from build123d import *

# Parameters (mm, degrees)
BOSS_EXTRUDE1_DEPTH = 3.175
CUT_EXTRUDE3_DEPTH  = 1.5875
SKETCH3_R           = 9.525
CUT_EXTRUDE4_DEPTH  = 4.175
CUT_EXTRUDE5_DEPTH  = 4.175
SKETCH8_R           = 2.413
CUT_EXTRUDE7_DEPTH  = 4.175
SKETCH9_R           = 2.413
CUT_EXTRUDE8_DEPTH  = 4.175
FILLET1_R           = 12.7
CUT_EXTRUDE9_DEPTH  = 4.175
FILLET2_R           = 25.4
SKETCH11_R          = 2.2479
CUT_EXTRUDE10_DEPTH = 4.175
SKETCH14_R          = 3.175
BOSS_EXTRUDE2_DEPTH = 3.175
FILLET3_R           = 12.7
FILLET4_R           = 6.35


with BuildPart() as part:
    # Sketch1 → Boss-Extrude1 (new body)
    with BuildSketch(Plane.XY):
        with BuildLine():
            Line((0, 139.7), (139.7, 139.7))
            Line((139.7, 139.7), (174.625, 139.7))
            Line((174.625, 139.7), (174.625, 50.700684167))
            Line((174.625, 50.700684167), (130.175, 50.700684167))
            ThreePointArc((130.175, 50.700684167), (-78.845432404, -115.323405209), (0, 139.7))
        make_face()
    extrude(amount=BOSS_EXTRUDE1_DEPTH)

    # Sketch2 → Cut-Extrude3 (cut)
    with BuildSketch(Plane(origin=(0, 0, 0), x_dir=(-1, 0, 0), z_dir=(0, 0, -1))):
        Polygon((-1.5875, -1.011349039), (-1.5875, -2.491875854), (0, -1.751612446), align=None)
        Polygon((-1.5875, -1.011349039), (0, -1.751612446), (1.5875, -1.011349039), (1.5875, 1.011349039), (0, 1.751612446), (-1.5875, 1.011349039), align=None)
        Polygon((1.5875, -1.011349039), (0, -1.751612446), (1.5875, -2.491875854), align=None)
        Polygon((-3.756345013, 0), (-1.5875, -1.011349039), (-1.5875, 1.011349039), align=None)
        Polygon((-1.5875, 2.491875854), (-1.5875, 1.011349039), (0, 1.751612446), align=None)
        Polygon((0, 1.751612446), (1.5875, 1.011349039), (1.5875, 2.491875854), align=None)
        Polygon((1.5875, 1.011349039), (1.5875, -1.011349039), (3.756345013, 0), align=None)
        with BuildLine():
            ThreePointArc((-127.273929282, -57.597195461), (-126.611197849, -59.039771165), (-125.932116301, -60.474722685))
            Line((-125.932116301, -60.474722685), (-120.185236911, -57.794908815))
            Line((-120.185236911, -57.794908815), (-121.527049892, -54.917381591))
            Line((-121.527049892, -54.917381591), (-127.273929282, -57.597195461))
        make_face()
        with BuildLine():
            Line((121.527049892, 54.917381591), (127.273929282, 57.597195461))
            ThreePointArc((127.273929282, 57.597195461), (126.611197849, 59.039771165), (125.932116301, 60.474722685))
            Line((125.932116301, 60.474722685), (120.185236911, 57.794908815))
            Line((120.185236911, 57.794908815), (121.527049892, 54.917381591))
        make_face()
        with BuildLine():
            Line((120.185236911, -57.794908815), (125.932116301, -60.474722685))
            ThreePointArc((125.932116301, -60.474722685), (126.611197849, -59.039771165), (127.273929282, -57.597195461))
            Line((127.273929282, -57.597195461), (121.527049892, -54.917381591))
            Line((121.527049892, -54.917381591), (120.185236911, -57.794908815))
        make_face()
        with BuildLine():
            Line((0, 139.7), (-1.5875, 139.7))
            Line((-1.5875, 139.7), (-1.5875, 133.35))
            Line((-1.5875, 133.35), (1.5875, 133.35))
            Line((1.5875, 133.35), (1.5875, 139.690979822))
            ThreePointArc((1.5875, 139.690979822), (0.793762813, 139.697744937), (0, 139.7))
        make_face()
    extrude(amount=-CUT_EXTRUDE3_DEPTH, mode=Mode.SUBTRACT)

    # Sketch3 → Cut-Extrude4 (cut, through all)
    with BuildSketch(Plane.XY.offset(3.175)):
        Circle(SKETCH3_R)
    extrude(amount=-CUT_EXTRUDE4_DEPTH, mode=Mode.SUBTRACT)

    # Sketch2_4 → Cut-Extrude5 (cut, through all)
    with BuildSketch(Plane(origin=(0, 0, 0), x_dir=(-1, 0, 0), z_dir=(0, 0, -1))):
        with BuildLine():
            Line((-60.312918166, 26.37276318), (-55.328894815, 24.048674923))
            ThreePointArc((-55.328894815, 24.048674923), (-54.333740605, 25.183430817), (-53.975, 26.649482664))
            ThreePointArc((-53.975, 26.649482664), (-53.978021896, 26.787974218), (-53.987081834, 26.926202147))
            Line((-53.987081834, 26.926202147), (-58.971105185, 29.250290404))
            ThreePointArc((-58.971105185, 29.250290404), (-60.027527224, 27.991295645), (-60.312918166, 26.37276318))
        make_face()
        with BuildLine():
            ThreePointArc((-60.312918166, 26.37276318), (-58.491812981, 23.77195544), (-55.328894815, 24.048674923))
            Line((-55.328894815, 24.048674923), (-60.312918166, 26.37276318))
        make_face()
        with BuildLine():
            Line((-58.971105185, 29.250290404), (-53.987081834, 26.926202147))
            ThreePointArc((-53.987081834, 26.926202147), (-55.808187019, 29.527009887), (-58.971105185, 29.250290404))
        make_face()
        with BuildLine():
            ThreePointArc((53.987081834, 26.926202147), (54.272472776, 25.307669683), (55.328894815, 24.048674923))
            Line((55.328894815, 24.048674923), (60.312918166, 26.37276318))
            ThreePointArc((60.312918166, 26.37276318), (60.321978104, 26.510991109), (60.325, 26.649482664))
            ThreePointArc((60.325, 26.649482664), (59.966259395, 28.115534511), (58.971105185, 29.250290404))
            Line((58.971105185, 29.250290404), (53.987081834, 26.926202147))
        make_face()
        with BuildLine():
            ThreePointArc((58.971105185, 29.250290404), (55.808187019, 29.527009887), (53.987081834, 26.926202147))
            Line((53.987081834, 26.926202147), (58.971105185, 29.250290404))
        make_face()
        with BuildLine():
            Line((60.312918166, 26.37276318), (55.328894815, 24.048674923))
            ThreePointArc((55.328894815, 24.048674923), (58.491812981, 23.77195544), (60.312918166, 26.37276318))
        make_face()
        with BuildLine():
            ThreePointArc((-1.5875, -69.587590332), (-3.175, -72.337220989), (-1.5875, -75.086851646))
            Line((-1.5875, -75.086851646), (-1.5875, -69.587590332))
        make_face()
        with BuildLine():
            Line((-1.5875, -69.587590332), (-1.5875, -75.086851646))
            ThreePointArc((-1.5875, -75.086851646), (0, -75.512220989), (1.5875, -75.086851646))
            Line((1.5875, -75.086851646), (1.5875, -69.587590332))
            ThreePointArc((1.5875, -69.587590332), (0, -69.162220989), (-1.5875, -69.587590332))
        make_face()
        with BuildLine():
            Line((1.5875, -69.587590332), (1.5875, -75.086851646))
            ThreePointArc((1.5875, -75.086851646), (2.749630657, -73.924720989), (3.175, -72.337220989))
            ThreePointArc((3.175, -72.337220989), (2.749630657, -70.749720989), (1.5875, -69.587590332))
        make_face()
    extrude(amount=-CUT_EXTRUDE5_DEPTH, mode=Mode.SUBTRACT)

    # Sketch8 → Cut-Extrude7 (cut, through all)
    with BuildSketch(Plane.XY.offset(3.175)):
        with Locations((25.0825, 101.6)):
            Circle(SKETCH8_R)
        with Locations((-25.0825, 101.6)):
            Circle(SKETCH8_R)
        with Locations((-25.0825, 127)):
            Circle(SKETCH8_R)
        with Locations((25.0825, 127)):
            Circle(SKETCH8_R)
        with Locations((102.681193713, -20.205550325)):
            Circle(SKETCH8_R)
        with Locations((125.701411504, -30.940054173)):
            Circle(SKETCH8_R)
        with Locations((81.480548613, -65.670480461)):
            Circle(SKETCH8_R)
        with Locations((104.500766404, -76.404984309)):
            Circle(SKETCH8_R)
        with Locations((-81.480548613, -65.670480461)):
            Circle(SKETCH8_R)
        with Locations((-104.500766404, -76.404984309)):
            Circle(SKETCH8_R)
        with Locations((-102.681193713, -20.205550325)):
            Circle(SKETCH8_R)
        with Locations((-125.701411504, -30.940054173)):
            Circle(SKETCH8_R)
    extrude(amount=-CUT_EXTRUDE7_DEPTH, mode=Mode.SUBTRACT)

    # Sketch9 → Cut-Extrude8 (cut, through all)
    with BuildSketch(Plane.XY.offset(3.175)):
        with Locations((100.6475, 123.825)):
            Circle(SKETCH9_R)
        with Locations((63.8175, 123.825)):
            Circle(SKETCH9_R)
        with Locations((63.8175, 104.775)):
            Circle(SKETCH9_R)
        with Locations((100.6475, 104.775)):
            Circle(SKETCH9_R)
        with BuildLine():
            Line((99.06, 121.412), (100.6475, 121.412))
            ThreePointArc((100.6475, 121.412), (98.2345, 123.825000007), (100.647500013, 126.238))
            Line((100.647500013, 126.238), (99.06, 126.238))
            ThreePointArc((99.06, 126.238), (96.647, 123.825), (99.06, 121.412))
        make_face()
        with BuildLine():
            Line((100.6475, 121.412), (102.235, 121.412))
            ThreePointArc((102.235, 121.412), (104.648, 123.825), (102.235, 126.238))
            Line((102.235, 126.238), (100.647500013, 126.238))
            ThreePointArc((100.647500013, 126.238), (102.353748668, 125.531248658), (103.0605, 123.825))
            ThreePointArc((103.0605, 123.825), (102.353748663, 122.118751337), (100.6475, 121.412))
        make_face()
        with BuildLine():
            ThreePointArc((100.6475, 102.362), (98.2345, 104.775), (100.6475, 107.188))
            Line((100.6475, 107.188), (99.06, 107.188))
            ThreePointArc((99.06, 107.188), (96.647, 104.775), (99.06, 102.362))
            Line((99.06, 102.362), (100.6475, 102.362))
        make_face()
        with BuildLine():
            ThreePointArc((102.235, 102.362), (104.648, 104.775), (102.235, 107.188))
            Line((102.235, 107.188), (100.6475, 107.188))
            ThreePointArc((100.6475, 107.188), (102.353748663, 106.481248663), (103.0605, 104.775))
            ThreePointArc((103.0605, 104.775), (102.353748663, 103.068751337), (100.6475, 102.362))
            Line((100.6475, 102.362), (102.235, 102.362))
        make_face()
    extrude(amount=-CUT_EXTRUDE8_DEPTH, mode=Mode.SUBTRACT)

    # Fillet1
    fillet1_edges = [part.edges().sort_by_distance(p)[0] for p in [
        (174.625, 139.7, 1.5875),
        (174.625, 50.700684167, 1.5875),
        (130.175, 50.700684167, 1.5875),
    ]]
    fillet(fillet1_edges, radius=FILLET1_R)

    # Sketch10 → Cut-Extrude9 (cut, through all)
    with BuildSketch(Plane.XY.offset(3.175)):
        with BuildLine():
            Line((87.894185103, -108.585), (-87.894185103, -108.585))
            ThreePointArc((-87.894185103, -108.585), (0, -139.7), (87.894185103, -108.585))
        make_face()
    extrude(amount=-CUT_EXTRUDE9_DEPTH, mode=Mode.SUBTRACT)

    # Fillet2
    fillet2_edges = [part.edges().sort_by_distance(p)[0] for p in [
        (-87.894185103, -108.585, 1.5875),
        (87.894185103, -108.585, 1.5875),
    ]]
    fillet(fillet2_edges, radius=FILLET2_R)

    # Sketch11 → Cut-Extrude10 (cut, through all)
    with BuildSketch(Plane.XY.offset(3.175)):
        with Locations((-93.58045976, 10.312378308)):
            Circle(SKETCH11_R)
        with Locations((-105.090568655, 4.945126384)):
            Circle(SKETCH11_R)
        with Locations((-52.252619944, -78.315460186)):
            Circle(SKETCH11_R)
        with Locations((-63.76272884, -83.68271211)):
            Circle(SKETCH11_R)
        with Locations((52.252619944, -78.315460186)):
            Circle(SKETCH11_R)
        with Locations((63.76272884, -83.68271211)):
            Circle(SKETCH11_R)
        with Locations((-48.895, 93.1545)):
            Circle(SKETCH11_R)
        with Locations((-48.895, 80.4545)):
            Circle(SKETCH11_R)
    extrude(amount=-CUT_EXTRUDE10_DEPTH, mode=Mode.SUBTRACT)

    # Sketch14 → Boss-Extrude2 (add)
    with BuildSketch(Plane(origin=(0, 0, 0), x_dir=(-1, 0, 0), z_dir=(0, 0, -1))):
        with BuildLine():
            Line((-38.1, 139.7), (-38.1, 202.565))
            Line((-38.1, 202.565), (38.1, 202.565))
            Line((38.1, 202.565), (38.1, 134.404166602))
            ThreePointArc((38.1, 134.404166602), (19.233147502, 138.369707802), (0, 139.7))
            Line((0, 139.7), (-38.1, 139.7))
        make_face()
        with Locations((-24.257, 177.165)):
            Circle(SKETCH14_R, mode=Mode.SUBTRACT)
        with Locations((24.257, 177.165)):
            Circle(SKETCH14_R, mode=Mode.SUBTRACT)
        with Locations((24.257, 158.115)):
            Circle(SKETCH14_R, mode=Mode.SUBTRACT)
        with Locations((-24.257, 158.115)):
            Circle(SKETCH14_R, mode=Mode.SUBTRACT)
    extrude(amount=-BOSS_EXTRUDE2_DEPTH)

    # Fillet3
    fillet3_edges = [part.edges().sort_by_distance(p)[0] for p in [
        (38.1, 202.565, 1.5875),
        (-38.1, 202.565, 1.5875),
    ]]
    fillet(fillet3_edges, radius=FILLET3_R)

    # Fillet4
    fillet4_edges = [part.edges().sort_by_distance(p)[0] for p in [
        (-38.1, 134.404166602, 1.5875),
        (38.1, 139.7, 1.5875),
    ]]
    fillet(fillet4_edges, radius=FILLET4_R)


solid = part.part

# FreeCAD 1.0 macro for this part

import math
import FreeCAD as App
import Part
import Sketcher

V = App.Vector
Q = App.Units.Quantity


def edges_at(feature, points):
    """Names of the edges that pass closest to the given points."""
    edges = feature.Shape.Edges
    near = lambda p: min(range(len(edges)), key=lambda i: edges[i].distToShape(Part.Vertex(*p))[0])
    return sorted({f"Edge{near(p) + 1}" for p in points})


def add_polygon(sketch, points):
    """Adds a closed chain of lines whose ends are joined by coincident constraints."""
    first, n = sketch.GeometryCount, len(points)
    for a, b in zip(points, points[1:] + points[:1]):
        sketch.addGeometry(Part.LineSegment(App.Vector(*a, 0), App.Vector(*b, 0)), False)
    for i in range(n):
        sketch.addConstraint(Sketcher.Constraint("Coincident", first + i, 2, first + (i + 1) % n, 1))

doc = App.newDocument("Part")
body = doc.addObject("PartDesign::Body", "Body")

# Sketch on XY plane
sketch1 = body.newObject("Sketcher::SketchObject", "Sketch")
sketch1.AttachmentSupport = (doc.getObject("XY_Plane"), [""])
sketch1.MapMode = "FlatFace"
sketch1.addGeometry([
    Part.LineSegment(V(175, 140, 0), V(0, 140, 0)),
    Part.ArcOfCircle(Part.Circle(V(0, 0, 0), V(0, 0, 1), 140), math.radians(90), math.radians(381)),
    Part.LineSegment(V(130, 51, 0), V(175, 51, 0)),
    Part.LineSegment(V(175, 51, 0), V(175, 140, 0)),
], False)
sketch1.addConstraint([
    Sketcher.Constraint("Tangent", 0, 2, 1, 1),
    Sketcher.Constraint("Coincident", 1, 2, 2, 1),
    Sketcher.Constraint("Coincident", 2, 2, 3, 1),
    Sketcher.Constraint("Coincident", 3, 2, 0, 1),
    Sketcher.Constraint("Horizontal", 0),
    Sketcher.Constraint("Horizontal", 2),
    Sketcher.Constraint("Vertical", 3),
    Sketcher.Constraint("Coincident", 1, 3, -1, 1),
    Sketcher.Constraint("Radius", 1, Q("5.5 in")),
    Sketcher.Constraint("DistanceX", 2, 1, 2, 2, Q("1.75 in")),
    Sketcher.Constraint("DistanceX", 0, 2, 0, 1, Q("6.875 in")),
])
pad1 = body.newObject("PartDesign::Pad", "Pad")
pad1.Profile = sketch1
pad1.Length = Q("0.125 in")

# Sketch on XY plane
sketch2 = body.newObject("Sketcher::SketchObject", "Sketch001")
sketch2.AttachmentSupport = (doc.getObject("XY_Plane"), [""])
sketch2.MapMode = "FlatFace"
add_polygon(sketch2, [(1.6, -2.5), (0, -1.8), (-1.6, -2.5), (-1.6, -1), (-3.8, 0), (-1.6, 1), (-1.6, 2.5), (0, 1.8), (1.6, 2.5), (1.6, 1), (3.8, 0), (1.6, -1)])  # lines 0-11
sketch2.addGeometry(Part.ArcOfCircle(Part.Circle(V(0, 0, 0), V(0, 0, 1), 139.7), math.radians(-25.65), math.radians(-24.35)), False)  # 12
sketch2.addGeometry(Part.LineSegment(V(125.9, -60.5, 0), V(120.2, -57.8, 0)), False)  # 13
sketch2.addGeometry(Part.LineSegment(V(120.2, -57.8, 0), V(121.5, -54.9, 0)), False)  # 14
sketch2.addGeometry(Part.LineSegment(V(121.5, -54.9, 0), V(127.3, -57.6, 0)), False)  # 15
sketch2.addGeometry(Part.LineSegment(V(-121.5, 54.9, 0), V(-127.3, 57.6, 0)), False)  # 16
sketch2.addGeometry(Part.ArcOfCircle(Part.Circle(V(0, 0, 0), V(0, 0, 1), 139.7), math.radians(154.35), math.radians(155.65)), False)  # 17
sketch2.addGeometry(Part.LineSegment(V(-125.9, 60.5, 0), V(-120.2, 57.8, 0)), False)  # 18
sketch2.addGeometry(Part.LineSegment(V(-120.2, 57.8, 0), V(-121.5, 54.9, 0)), False)  # 19
sketch2.addGeometry(Part.LineSegment(V(-120.2, -57.8, 0), V(-125.9, -60.5, 0)), False)  # 20
sketch2.addGeometry(Part.ArcOfCircle(Part.Circle(V(0, 0, 0), V(0, 0, 1), 139.7), math.radians(-155.65), math.radians(-154.35)), False)  # 21
sketch2.addGeometry(Part.LineSegment(V(-127.3, -57.6, 0), V(-121.5, -54.9, 0)), False)  # 22
sketch2.addGeometry(Part.LineSegment(V(-121.5, -54.9, 0), V(-120.2, -57.8, 0)), False)  # 23
sketch2.addGeometry(Part.LineSegment(V(0, 139.7, 0), V(1.6, 139.7, 0)), False)  # 24
sketch2.addGeometry(Part.LineSegment(V(1.6, 139.7, 0), V(1.6, 133.3, 0)), False)  # 25
sketch2.addGeometry(Part.LineSegment(V(1.6, 133.3, 0), V(-1.6, 133.3, 0)), False)  # 26
sketch2.addGeometry(Part.LineSegment(V(-1.6, 133.3, 0), V(-1.6, 139.7, 0)), False)  # 27
sketch2.addGeometry(Part.ArcOfCircle(Part.Circle(V(0, 0, 0), V(0, 0, 1), 139.7), math.radians(90), math.radians(90.65)), False)  # 28
sketch2.addConstraint([
    Sketcher.Constraint("Coincident", 12, 1, 13, 1),
    Sketcher.Constraint("Coincident", 13, 2, 14, 1),
    Sketcher.Constraint("Coincident", 14, 2, 15, 1),
    Sketcher.Constraint("Coincident", 15, 2, 12, 2),
    Sketcher.Constraint("Coincident", 16, 2, 17, 2),
    Sketcher.Constraint("Coincident", 17, 1, 18, 1),
    Sketcher.Constraint("Coincident", 18, 2, 19, 1),
    Sketcher.Constraint("Coincident", 19, 2, 16, 1),
    Sketcher.Constraint("Coincident", 20, 2, 21, 2),
    Sketcher.Constraint("Coincident", 21, 1, 22, 1),
    Sketcher.Constraint("Coincident", 22, 2, 23, 1),
    Sketcher.Constraint("Coincident", 23, 2, 20, 1),
    Sketcher.Constraint("Coincident", 24, 2, 25, 1),
    Sketcher.Constraint("Coincident", 25, 2, 26, 1),
    Sketcher.Constraint("Coincident", 26, 2, 27, 1),
    Sketcher.Constraint("Coincident", 27, 2, 28, 2),
    Sketcher.Constraint("Tangent", 28, 1, 24, 1),
    Sketcher.Constraint("Vertical", 2),
    Sketcher.Constraint("Vertical", 5),
    Sketcher.Constraint("Vertical", 8),
    Sketcher.Constraint("Vertical", 11),
    Sketcher.Constraint("Horizontal", 24),
    Sketcher.Constraint("Vertical", 25),
    Sketcher.Constraint("Horizontal", 26),
    Sketcher.Constraint("Vertical", 27),
    Sketcher.Constraint("Coincident", 12, 3, -1, 1),
    Sketcher.Constraint("Coincident", 17, 3, -1, 1),
    Sketcher.Constraint("Coincident", 21, 3, -1, 1),
    Sketcher.Constraint("Equal", 12, 17),
    Sketcher.Constraint("Equal", 17, 21),
    Sketcher.Constraint("Symmetric", 0, 2, 6, 2, -1, 1),
    Sketcher.Constraint("Symmetric", 1, 2, 7, 2, -1, 1),
    Sketcher.Constraint("Symmetric", 3, 2, 9, 2, -1, 1),
    Sketcher.Constraint("Symmetric", 4, 2, 10, 2, -1, 1),
    Sketcher.Constraint("Symmetric", 13, 2, 18, 2, -1, 1),
    Sketcher.Constraint("Symmetric", 14, 2, 19, 2, -1, 1),
    Sketcher.Constraint("Symmetric", 5, 2, 7, 2, -2),
    Sketcher.Constraint("Symmetric", 14, 2, 22, 2, -2),
    Sketcher.Constraint("Symmetric", 13, 2, 23, 2, -2),
    Sketcher.Constraint("PointOnObject", 28, 3, -2),
    Sketcher.Constraint("PointOnObject", 0, 2, -2),
    Sketcher.Constraint("PointOnObject", 3, 2, -1),
    Sketcher.Constraint("Parallel", 0, 3),
    Sketcher.Constraint("Parallel", 1, 4),
    Sketcher.Constraint("Parallel", 3, 6),
    Sketcher.Constraint("Parallel", 6, 9),
    Sketcher.Constraint("Parallel", 9, 13),
    Sketcher.Constraint("Perpendicular", 13, 14),
    Sketcher.Constraint("Perpendicular", 14, 15),
    Sketcher.Constraint("Parallel", 15, 16),
    Sketcher.Constraint("Parallel", 16, 18),
    Sketcher.Constraint("Parallel", 10, 20),
    Sketcher.Constraint("Parallel", 20, 22),
    Sketcher.Constraint("Vertical", 11, 2, 24, 2),
    Sketcher.Constraint("Vertical", 5, 2, 26, 2),
    Sketcher.Constraint("Equal", 13, 15),
    Sketcher.Constraint("Angle", 0, Q("155 deg")),
    Sketcher.Constraint("DistanceY", 25, 2, 25, 1, Q("0.25 in")),
    Sketcher.Constraint("DistanceY", -1, 1, 24, 2, Q("5.5 in")),
    Sketcher.Constraint("DistanceX", 24, 1, 24, 2, Q("0.0625 in")),
    Sketcher.Constraint("Distance", 14, Q("0.125 in")),
    Sketcher.Constraint("Radius", 28, 139.700012),
    Sketcher.Constraint("Radius", 12, 139.699994),
    Sketcher.Constraint("DistanceY", 0, 2, 28, 3, 1.751601),
    Sketcher.Constraint("DistanceY", 2, 2, 4, 2, 2.022698),
    Sketcher.Constraint("Distance", 13, 6.34098),
])
pocket1 = body.newObject("PartDesign::Pocket", "Pocket")
pocket1.Profile = sketch2
pocket1.Length = Q("0.0625 in")
pocket1.Reversed = True

# Sketch on XY plane
sketch3 = body.newObject("Sketcher::SketchObject", "Sketch002")
sketch3.AttachmentSupport = (doc.getObject("XY_Plane"), [""])
sketch3.MapMode = "FlatFace"
sketch3.AttachmentOffset = App.Placement(V(0, 0, 0.125 * 25.4), App.Rotation())
sketch3.addGeometry(Part.Circle(V(0, 0, 0), V(0, 0, 1), 10), False)
sketch3.addConstraint([
    Sketcher.Constraint("Coincident", 0, 3, -1, 1),
    Sketcher.Constraint("Diameter", 0, Q("0.75 in")),
])
pocket2 = body.newObject("PartDesign::Pocket", "Pocket001")
pocket2.Profile = sketch3
pocket2.Type = "ThroughAll"

# Sketch on XY plane
sketch4 = body.newObject("Sketcher::SketchObject", "Sketch003")
sketch4.AttachmentSupport = (doc.getObject("XY_Plane"), [""])
sketch4.MapMode = "FlatFace"
sketch4.addGeometry([
    Part.ArcOfCircle(Part.Circle(V(57.15, 26.65, 0), V(0, 0, 1), 3.18), math.radians(-180), math.radians(-125)),  # 0
    Part.ArcOfCircle(Part.Circle(V(57.15, 26.65, 0), V(0, 0, 1), 3.17), math.radians(175), math.radians(180)),  # 1
    Part.ArcOfCircle(Part.Circle(V(57.15, 26.65, 0), V(0, 0, 1), 3.17), math.radians(55), math.radians(175)),  # 2
    Part.ArcOfCircle(Part.Circle(V(57.15, 26.65, 0), V(0, 0, 1), 3.17), math.radians(-5), math.radians(55)),  # 3
    Part.ArcOfCircle(Part.Circle(V(57.15, 26.65, 0), V(0, 0, 1), 3.17), math.radians(-125), math.radians(-5)),  # 4
    Part.ArcOfCircle(Part.Circle(V(-57.15, 26.65, 0), V(0, 0, 1), 3.17), math.radians(-55), math.radians(5)),  # 5
    Part.ArcOfCircle(Part.Circle(V(-57.15, 26.65, 0), V(0, 0, 1), 3.17), math.radians(-175), math.radians(-55)),  # 6
    Part.ArcOfCircle(Part.Circle(V(-57.15, 26.65, 0), V(0, 0, 1), 3.17), math.radians(180), math.radians(185)),  # 7
    Part.ArcOfCircle(Part.Circle(V(-57.15, 26.65, 0), V(0, 0, 1), 3.17), math.radians(125), math.radians(180)),  # 8
    Part.ArcOfCircle(Part.Circle(V(-57.15, 26.65, 0), V(0, 0, 1), 3.17), math.radians(5), math.radians(125)),  # 9
    Part.ArcOfCircle(Part.Circle(V(0, -72.34, 0), V(0, 0, 1), 3.17), math.radians(-60), math.radians(60)),  # 10
    Part.ArcOfCircle(Part.Circle(V(0, -72.34, 0), V(0, 0, 1), 3.17), math.radians(-120), math.radians(-60)),  # 11
    Part.ArcOfCircle(Part.Circle(V(0, -72.34, 0), V(0, 0, 1), 3.17), math.radians(180), math.radians(240)),  # 12
    Part.ArcOfCircle(Part.Circle(V(0, -72.34, 0), V(0, 0, 1), 3.17), math.radians(120), math.radians(180)),  # 13
    Part.ArcOfCircle(Part.Circle(V(0, -72.34, 0), V(0, 0, 1), 3.17), math.radians(60), math.radians(120)),  # 14
], False)
sketch4.addConstraint([
    Sketcher.Constraint("Tangent", 0, 1, 1, 2),
    Sketcher.Constraint("Tangent", 1, 1, 2, 2),
    Sketcher.Constraint("Tangent", 2, 1, 3, 2),
    Sketcher.Constraint("Tangent", 3, 1, 4, 2),
    Sketcher.Constraint("Tangent", 4, 1, 0, 2),
    Sketcher.Constraint("Tangent", 5, 1, 6, 2),
    Sketcher.Constraint("Tangent", 6, 1, 7, 2),
    Sketcher.Constraint("Tangent", 7, 1, 8, 2),
    Sketcher.Constraint("Tangent", 8, 1, 9, 2),
    Sketcher.Constraint("Tangent", 9, 1, 5, 2),
    Sketcher.Constraint("Tangent", 10, 1, 11, 2),
    Sketcher.Constraint("Tangent", 11, 1, 12, 2),
    Sketcher.Constraint("Tangent", 12, 1, 13, 2),
    Sketcher.Constraint("Tangent", 13, 1, 14, 2),
    Sketcher.Constraint("Tangent", 14, 1, 10, 2),
    Sketcher.Constraint("Coincident", 2, 3, 0, 3),
    Sketcher.Constraint("Coincident", 7, 3, 5, 3),
    Sketcher.Constraint("Coincident", 12, 3, 10, 3),
    Sketcher.Constraint("Equal", 4, 5),
    Sketcher.Constraint("Equal", 9, 10),
    Sketcher.Constraint("Symmetric", 0, 3, 5, 3, -2),
    Sketcher.Constraint("Symmetric", 10, 1, 11, 1, -2),
    Sketcher.Constraint("Horizontal", 9, 3, 0, 1),
    Sketcher.Constraint("Horizontal", 4, 1, 5, 1),
    Sketcher.Constraint("Horizontal", 3, 1, 6, 1),
    Sketcher.Constraint("Horizontal", 0, 1, 7, 1),
    Sketcher.Constraint("Horizontal", 2, 1, 8, 1),
    Sketcher.Constraint("Horizontal", 1, 1, 9, 1),
    Sketcher.Constraint("Horizontal", 14, 3, 12, 1),
    Sketcher.Constraint("Horizontal", 13, 1, 14, 1),
    Sketcher.Constraint("Vertical", 11, 1, 13, 1),
    Sketcher.Constraint("Radius", 0, Q("0.125 in")),
    Sketcher.Constraint("DistanceX", 5, 3, 1, 3, Q("4.5 in")),
    Sketcher.Constraint("DistanceX", -1, 1, 10, 1, Q("0.0625 in")),
    Sketcher.Constraint("DistanceY", 10, 3, -1, 1, 72.337221),
    Sketcher.Constraint("DistanceX", -1, 1, 1, 1, 53.987082),
    Sketcher.Constraint("DistanceY", -1, 1, 2, 1, 29.25029),
    Sketcher.Constraint("DistanceX", -1, 1, 3, 1, 60.312918),
    Sketcher.Constraint("DistanceY", -1, 1, 0, 3, 26.649483),
    Sketcher.Constraint("DistanceX", -1, 1, 4, 1, 55.328895),
])
pocket3 = body.newObject("PartDesign::Pocket", "Pocket002")
pocket3.Profile = sketch4
pocket3.Type = "ThroughAll"
pocket3.Reversed = True

# Sketch on XY plane
sketch5 = body.newObject("Sketcher::SketchObject", "Sketch004")
sketch5.AttachmentSupport = (doc.getObject("XY_Plane"), [""])
sketch5.MapMode = "FlatFace"
sketch5.AttachmentOffset = App.Placement(V(0, 0, 0.125 * 25.4), App.Rotation())
sketch5.addGeometry([
    Part.Circle(V(25.1, 101.6, 0), V(0, 0, 1), 2.4),  # 0
    Part.Circle(V(-25.1, 101.6, 0), V(0, 0, 1), 2.4),  # 1
    Part.Circle(V(-25.1, 127, 0), V(0, 0, 1), 2.4),  # 2
    Part.Circle(V(25.1, 127, 0), V(0, 0, 1), 2.4),  # 3
    Part.Circle(V(102.7, -20.2, 0), V(0, 0, 1), 2.4),  # 4
    Part.Circle(V(125.7, -30.9, 0), V(0, 0, 1), 2.4),  # 5
    Part.Circle(V(81.5, -65.7, 0), V(0, 0, 1), 2.4),  # 6
    Part.Circle(V(104.5, -76.4, 0), V(0, 0, 1), 2.4),  # 7
    Part.Circle(V(-81.5, -65.7, 0), V(0, 0, 1), 2.4),  # 8
    Part.Circle(V(-104.5, -76.4, 0), V(0, 0, 1), 2.4),  # 9
    Part.Circle(V(-102.7, -20.2, 0), V(0, 0, 1), 2.4),  # 10
    Part.Circle(V(-125.7, -30.9, 0), V(0, 0, 1), 2.4),  # 11
], False)
sketch5.addConstraint([
    Sketcher.Constraint("Equal", 0, 1),
    Sketcher.Constraint("Equal", 1, 2),
    Sketcher.Constraint("Equal", 2, 3),
    Sketcher.Constraint("Equal", 3, 4),
    Sketcher.Constraint("Equal", 4, 5),
    Sketcher.Constraint("Equal", 5, 6),
    Sketcher.Constraint("Equal", 6, 7),
    Sketcher.Constraint("Equal", 7, 8),
    Sketcher.Constraint("Equal", 8, 9),
    Sketcher.Constraint("Equal", 9, 10),
    Sketcher.Constraint("Equal", 10, 11),
    Sketcher.Constraint("Symmetric", 0, 3, 1, 3, -2),
    Sketcher.Constraint("Symmetric", 2, 3, 3, 3, -2),
    Sketcher.Constraint("Symmetric", 6, 3, 8, 3, -2),
    Sketcher.Constraint("Symmetric", 7, 3, 9, 3, -2),
    Sketcher.Constraint("Symmetric", 4, 3, 10, 3, -2),
    Sketcher.Constraint("Symmetric", 5, 3, 11, 3, -2),
    Sketcher.Constraint("Vertical", 1, 3, 2, 3),
    Sketcher.Constraint("Diameter", 0, Q("0.19 in")),
    Sketcher.Constraint("DistanceY", -1, 1, 0, 3, Q("4 in")),
    Sketcher.Constraint("DistanceY", -1, 1, 2, 3, Q("5 in")),
    Sketcher.Constraint("DistanceX", 1, 3, 0, 3, Q("1.975 in")),
    Sketcher.Constraint("DistanceY", 4, 3, -1, 1, 20.20555),
    Sketcher.Constraint("DistanceX", -1, 1, 5, 3, 125.701412),
    Sketcher.Constraint("DistanceX", -1, 1, 6, 3, 81.480549),
    Sketcher.Constraint("DistanceY", 6, 3, -1, 1, 65.67048),
    Sketcher.Constraint("DistanceY", 7, 3, 5, 3, 45.46493),
    Sketcher.Constraint("DistanceX", 9, 3, 4, 3, 207.18196),
    Sketcher.Constraint("DistanceX", -1, 1, 4, 3, 102.681194),
    Sketcher.Constraint("DistanceY", 5, 3, -1, 1, 30.940054),
])
pocket4 = body.newObject("PartDesign::Pocket", "Pocket003")
pocket4.Profile = sketch5
pocket4.Type = "ThroughAll"

# Sketch on XY plane
sketch6 = body.newObject("Sketcher::SketchObject", "Sketch005")
sketch6.AttachmentSupport = (doc.getObject("XY_Plane"), [""])
sketch6.MapMode = "FlatFace"
sketch6.AttachmentOffset = App.Placement(V(0, 0, 0.125 * 25.4), App.Rotation())
sketch6.addGeometry([
    Part.ArcOfCircle(Part.Circle(V(99.1, 123.8, 0), V(0, 0, 1), 2.4), math.radians(90), math.radians(270)),  # 0
    Part.LineSegment(V(99.1, 121.4, 0), V(102.2, 121.4, 0)),  # 1
    Part.ArcOfCircle(Part.Circle(V(102.2, 123.8, 0), V(0, 0, 1), 2.4), math.radians(-90), math.radians(90)),  # 2
    Part.LineSegment(V(102.2, 126.2, 0), V(99.1, 126.2, 0)),  # 3
    Part.Circle(V(63.8, 123.8, 0), V(0, 0, 1), 2.4),  # 4
    Part.Circle(V(63.8, 104.8, 0), V(0, 0, 1), 2.4),  # 5
    Part.ArcOfCircle(Part.Circle(V(99.1, 104.8, 0), V(0, 0, 1), 2.4), math.radians(90), math.radians(270)),  # 6
    Part.LineSegment(V(99.1, 102.4, 0), V(102.2, 102.4, 0)),  # 7
    Part.ArcOfCircle(Part.Circle(V(102.2, 104.8, 0), V(0, 0, 1), 2.4), math.radians(-90), math.radians(90)),  # 8
    Part.LineSegment(V(102.2, 107.2, 0), V(99.1, 107.2, 0)),  # 9
], False)
sketch6.addConstraint([
    Sketcher.Constraint("Tangent", 0, 2, 1, 1),
    Sketcher.Constraint("Tangent", 1, 2, 2, 1),
    Sketcher.Constraint("Tangent", 2, 2, 3, 1),
    Sketcher.Constraint("Tangent", 3, 2, 0, 1),
    Sketcher.Constraint("Tangent", 6, 2, 7, 1),
    Sketcher.Constraint("Tangent", 7, 2, 8, 1),
    Sketcher.Constraint("Tangent", 8, 2, 9, 1),
    Sketcher.Constraint("Tangent", 9, 2, 6, 1),
    Sketcher.Constraint("Horizontal", 1),
    Sketcher.Constraint("Horizontal", 3),
    Sketcher.Constraint("Horizontal", 7),
    Sketcher.Constraint("Horizontal", 9),
    Sketcher.Constraint("Equal", 2, 4),
    Sketcher.Constraint("Equal", 4, 5),
    Sketcher.Constraint("Equal", 5, 6),
    Sketcher.Constraint("Horizontal", 2, 3, 4, 3),
    Sketcher.Constraint("Horizontal", 5, 3, 6, 3),
    Sketcher.Constraint("Vertical", 4, 3, 5, 3),
    Sketcher.Constraint("Vertical", 0, 3, 6, 3),
    Sketcher.Constraint("Vertical", 2, 3, 8, 3),
    Sketcher.Constraint("Diameter", 4, Q("0.19 in")),
    Sketcher.Constraint("DistanceX", -1, 1, 0, 3, Q("3.9 in")),
    Sketcher.Constraint("DistanceX", 1, 1, 1, 2, Q("0.125 in")),
    Sketcher.Constraint("DistanceY", -1, 1, 0, 2, Q("4.78 in")),
    Sketcher.Constraint("DistanceY", -1, 1, 6, 2, Q("4.03 in")),
    Sketcher.Constraint("DistanceX", -1, 1, 4, 3, Q("2.5125 in")),
])
pocket5 = body.newObject("PartDesign::Pocket", "Pocket004")
pocket5.Profile = sketch6
pocket5.Type = "ThroughAll"
doc.recompute()

fillet = body.newObject("PartDesign::Fillet", "Fillet")
fillet.Base = (pocket5, edges_at(pocket5, [(174.625, 139.7, 1.587), (174.625, 50.701, 1.587), (130.175, 50.701, 1.587)]))
fillet.Radius = Q("0.5 in")

# Sketch on XY plane
sketch7 = body.newObject("Sketcher::SketchObject", "Sketch006")
sketch7.AttachmentSupport = (doc.getObject("XY_Plane"), [""])
sketch7.MapMode = "FlatFace"
sketch7.AttachmentOffset = App.Placement(V(0, 0, 0.125 * 25.4), App.Rotation())
sketch7.addGeometry([
    Part.LineSegment(V(88, -109, 0), V(-88, -109, 0)),
    Part.ArcOfCircle(Part.Circle(V(0, 0, 0), V(0, 0, 1), 140), math.radians(-129), math.radians(-51)),
], False)
sketch7.addConstraint([
    Sketcher.Constraint("Coincident", 0, 1, 1, 2),
    Sketcher.Constraint("Coincident", 1, 1, 0, 2),
    Sketcher.Constraint("Horizontal", 0),
    Sketcher.Constraint("Coincident", 1, 3, -1, 1),
    Sketcher.Constraint("Radius", 1, Q("5.5 in")),
    Sketcher.Constraint("DistanceY", 0, 1, -1, 1, Q("4.275 in")),
])
pocket6 = body.newObject("PartDesign::Pocket", "Pocket005")
pocket6.Profile = sketch7
pocket6.Type = "ThroughAll"
doc.recompute()

fillet2 = body.newObject("PartDesign::Fillet", "Fillet001")
fillet2.Base = (pocket6, edges_at(pocket6, [(-87.894, -108.585, 1.587), (87.894, -108.585, 1.587)]))
fillet2.Radius = Q("1 in")

# Sketch on XY plane
sketch8 = body.newObject("Sketcher::SketchObject", "Sketch007")
sketch8.AttachmentSupport = (doc.getObject("XY_Plane"), [""])
sketch8.MapMode = "FlatFace"
sketch8.AttachmentOffset = App.Placement(V(0, 0, 0.125 * 25.4), App.Rotation())
sketch8.addGeometry([
    Part.Circle(V(-93.6, 10.3, 0), V(0, 0, 1), 2.2),  # 0
    Part.Circle(V(-105.1, 4.9, 0), V(0, 0, 1), 2.2),  # 1
    Part.Circle(V(-52.3, -78.3, 0), V(0, 0, 1), 2.2),  # 2
    Part.Circle(V(-63.8, -83.7, 0), V(0, 0, 1), 2.2),  # 3
    Part.Circle(V(52.3, -78.3, 0), V(0, 0, 1), 2.2),  # 4
    Part.Circle(V(63.8, -83.7, 0), V(0, 0, 1), 2.2),  # 5
    Part.Circle(V(-48.9, 93.2, 0), V(0, 0, 1), 2.2),  # 6
    Part.Circle(V(-48.9, 80.5, 0), V(0, 0, 1), 2.2),  # 7
], False)
sketch8.addConstraint([
    Sketcher.Constraint("Equal", 0, 1),
    Sketcher.Constraint("Equal", 1, 2),
    Sketcher.Constraint("Equal", 2, 3),
    Sketcher.Constraint("Equal", 3, 4),
    Sketcher.Constraint("Equal", 4, 5),
    Sketcher.Constraint("Equal", 5, 6),
    Sketcher.Constraint("Equal", 6, 7),
    Sketcher.Constraint("Symmetric", 2, 3, 4, 3, -2),
    Sketcher.Constraint("Symmetric", 3, 3, 5, 3, -2),
    Sketcher.Constraint("Vertical", 6, 3, 7, 3),
    Sketcher.Constraint("Diameter", 0, Q("0.177 in")),
    Sketcher.Constraint("DistanceY", 7, 3, 6, 3, Q("0.5 in")),
    Sketcher.Constraint("DistanceX", 6, 3, -1, 1, Q("1.925 in")),
    Sketcher.Constraint("DistanceY", -1, 1, 6, 3, Q("3.6675 in")),
    Sketcher.Constraint("DistanceX", 0, 3, -1, 1, 93.58046),
    Sketcher.Constraint("DistanceY", -1, 1, 0, 3, 10.312378),
    Sketcher.Constraint("DistanceX", 1, 3, -1, 1, 105.090569),
    Sketcher.Constraint("DistanceX", 2, 3, -1, 1, 52.25262),
    Sketcher.Constraint("DistanceY", 2, 3, -1, 1, 78.31546),
    Sketcher.Constraint("DistanceX", 3, 3, -1, 1, 63.762729),
    Sketcher.Constraint("DistanceY", 1, 3, 0, 3, 5.367252),
    Sketcher.Constraint("DistanceY", 3, 3, 2, 3, 5.367252),
])
pocket7 = body.newObject("PartDesign::Pocket", "Pocket006")
pocket7.Profile = sketch8
pocket7.Type = "ThroughAll"

# Sketch on XY plane
sketch9 = body.newObject("Sketcher::SketchObject", "Sketch008")
sketch9.AttachmentSupport = (doc.getObject("XY_Plane"), [""])
sketch9.MapMode = "FlatFace"
sketch9.addGeometry([
    Part.LineSegment(V(38.1, 202.6, 0), V(38.1, 139.7, 0)),  # 0
    Part.LineSegment(V(38.1, 139.7, 0), V(0, 139.7, 0)),  # 1
    Part.ArcOfCircle(Part.Circle(V(0, 0, 0), V(0, 0, 1), 139.7), math.radians(90), math.radians(105.83)),  # 2
    Part.LineSegment(V(-38.1, 134.4, 0), V(-38.1, 202.6, 0)),  # 3
    Part.LineSegment(V(-38.1, 202.6, 0), V(38.1, 202.6, 0)),  # 4
    Part.Circle(V(-24.3, 158.1, 0), V(0, 0, 1), 3.2),  # 5
    Part.Circle(V(24.3, 158.1, 0), V(0, 0, 1), 3.2),  # 6
    Part.Circle(V(-24.3, 177.2, 0), V(0, 0, 1), 3.2),  # 7
    Part.Circle(V(24.3, 177.2, 0), V(0, 0, 1), 3.2),  # 8
], False)
sketch9.addConstraint([
    Sketcher.Constraint("Coincident", 0, 2, 1, 1),
    Sketcher.Constraint("Tangent", 1, 2, 2, 1),
    Sketcher.Constraint("Coincident", 2, 2, 3, 1),
    Sketcher.Constraint("Coincident", 3, 2, 4, 1),
    Sketcher.Constraint("Coincident", 4, 2, 0, 1),
    Sketcher.Constraint("Vertical", 0),
    Sketcher.Constraint("Horizontal", 1),
    Sketcher.Constraint("Vertical", 3),
    Sketcher.Constraint("Horizontal", 4),
    Sketcher.Constraint("Coincident", 2, 3, -1, 1),
    Sketcher.Constraint("Equal", 5, 6),
    Sketcher.Constraint("Equal", 6, 7),
    Sketcher.Constraint("Equal", 7, 8),
    Sketcher.Constraint("Symmetric", 5, 3, 6, 3, -2),
    Sketcher.Constraint("Symmetric", 7, 3, 8, 3, -2),
    Sketcher.Constraint("Vertical", 5, 3, 7, 3),
    Sketcher.Constraint("Radius", 2, Q("5.5 in")),
    Sketcher.Constraint("Diameter", 5, Q("0.25 in")),
    Sketcher.Constraint("DistanceX", 4, 1, 4, 2, Q("3 in")),
    Sketcher.Constraint("DistanceX", 1, 2, 1, 1, Q("1.5 in")),
    Sketcher.Constraint("DistanceY", 7, 3, 3, 2, Q("1 in")),
    Sketcher.Constraint("DistanceY", 0, 2, 0, 1, Q("2.475 in")),
    Sketcher.Constraint("DistanceX", 5, 3, 6, 3, Q("1.91 in")),
    Sketcher.Constraint("DistanceY", 5, 3, 7, 3, Q("0.75 in")),
])
pad2 = body.newObject("PartDesign::Pad", "Pad001")
pad2.Profile = sketch9
pad2.Length = Q("0.125 in")
doc.recompute()

fillet3 = body.newObject("PartDesign::Fillet", "Fillet002")
fillet3.Base = (pad2, edges_at(pad2, [(38.1, 202.565, 1.587), (-38.1, 202.565, 1.587)]))
fillet3.Radius = Q("0.5 in")
doc.recompute()

fillet4 = body.newObject("PartDesign::Fillet", "Fillet003")
fillet4.Base = (fillet3, edges_at(fillet3, [(-38.1, 134.404, 1.587), (38.1, 139.7, 1.587)]))
fillet4.Radius = Q("0.25 in")

doc.recompute()
